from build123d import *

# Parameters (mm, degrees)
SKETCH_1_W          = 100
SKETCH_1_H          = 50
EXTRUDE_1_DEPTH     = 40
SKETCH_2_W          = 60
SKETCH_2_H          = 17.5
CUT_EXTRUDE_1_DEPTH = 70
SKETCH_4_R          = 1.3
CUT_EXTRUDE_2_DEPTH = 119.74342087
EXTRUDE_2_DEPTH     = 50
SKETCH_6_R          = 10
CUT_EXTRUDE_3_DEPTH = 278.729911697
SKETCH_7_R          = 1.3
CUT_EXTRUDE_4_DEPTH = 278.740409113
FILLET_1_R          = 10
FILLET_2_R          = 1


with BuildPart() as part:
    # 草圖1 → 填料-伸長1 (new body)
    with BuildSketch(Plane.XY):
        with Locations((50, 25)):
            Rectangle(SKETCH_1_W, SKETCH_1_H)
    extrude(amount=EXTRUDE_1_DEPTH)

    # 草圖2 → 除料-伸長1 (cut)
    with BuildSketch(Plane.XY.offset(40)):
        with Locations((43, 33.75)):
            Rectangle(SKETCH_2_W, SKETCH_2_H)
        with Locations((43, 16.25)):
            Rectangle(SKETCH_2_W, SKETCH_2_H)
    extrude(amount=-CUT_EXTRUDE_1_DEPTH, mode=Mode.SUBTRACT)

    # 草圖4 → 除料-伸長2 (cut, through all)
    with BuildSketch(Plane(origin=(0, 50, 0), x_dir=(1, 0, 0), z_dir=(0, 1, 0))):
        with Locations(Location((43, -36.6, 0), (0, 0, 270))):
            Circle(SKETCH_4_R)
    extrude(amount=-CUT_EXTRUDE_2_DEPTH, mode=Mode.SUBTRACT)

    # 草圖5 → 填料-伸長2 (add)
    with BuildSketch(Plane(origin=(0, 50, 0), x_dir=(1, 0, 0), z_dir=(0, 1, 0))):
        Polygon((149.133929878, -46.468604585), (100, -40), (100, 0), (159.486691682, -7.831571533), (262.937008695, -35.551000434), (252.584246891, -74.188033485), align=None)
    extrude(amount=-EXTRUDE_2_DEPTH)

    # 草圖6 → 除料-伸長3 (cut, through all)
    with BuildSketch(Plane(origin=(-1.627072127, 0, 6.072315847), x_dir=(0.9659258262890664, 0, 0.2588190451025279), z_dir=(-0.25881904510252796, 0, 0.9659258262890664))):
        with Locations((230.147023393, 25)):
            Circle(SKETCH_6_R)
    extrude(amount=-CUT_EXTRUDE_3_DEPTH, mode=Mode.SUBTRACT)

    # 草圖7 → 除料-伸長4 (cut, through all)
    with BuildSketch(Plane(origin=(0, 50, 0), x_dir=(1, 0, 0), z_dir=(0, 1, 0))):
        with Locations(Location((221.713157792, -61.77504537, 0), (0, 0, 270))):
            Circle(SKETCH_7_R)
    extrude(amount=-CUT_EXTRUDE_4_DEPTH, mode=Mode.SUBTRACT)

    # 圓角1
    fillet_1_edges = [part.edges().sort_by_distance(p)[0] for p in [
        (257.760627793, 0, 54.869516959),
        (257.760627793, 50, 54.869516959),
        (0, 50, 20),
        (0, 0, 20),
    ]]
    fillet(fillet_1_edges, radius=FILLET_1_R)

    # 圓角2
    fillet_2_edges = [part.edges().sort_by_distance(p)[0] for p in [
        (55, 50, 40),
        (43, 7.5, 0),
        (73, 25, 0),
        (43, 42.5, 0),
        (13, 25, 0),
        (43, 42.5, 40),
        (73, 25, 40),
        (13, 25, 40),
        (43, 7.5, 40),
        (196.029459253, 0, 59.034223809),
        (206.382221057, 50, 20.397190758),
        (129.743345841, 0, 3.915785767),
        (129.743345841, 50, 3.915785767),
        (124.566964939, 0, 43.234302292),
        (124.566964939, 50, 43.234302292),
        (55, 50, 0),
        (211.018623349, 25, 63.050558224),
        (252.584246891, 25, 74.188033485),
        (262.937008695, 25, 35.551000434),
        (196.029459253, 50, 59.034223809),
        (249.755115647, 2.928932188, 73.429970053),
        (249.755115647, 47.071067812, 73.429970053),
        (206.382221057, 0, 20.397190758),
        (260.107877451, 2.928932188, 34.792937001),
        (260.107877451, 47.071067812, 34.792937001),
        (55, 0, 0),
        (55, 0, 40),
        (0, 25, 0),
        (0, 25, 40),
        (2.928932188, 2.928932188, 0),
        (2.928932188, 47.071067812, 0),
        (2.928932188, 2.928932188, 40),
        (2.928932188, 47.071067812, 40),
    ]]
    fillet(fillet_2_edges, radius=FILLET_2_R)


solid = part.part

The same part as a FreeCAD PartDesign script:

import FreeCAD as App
import Part
import Sketcher
from FreeCAD import Vector
Q = App.Units.Quantity


def edges_at(feature, points):
    """Names of the edges that pass closest to the given points."""
    edges = feature.Shape.Edges
    near = lambda p: min(range(len(edges)), key=lambda i: edges[i].distToShape(Part.Vertex(*p))[0])
    return sorted({f"Edge{near(p) + 1}" for p in points})

doc = App.newDocument("Part")
body = doc.addObject("PartDesign::Body", "Body")

sketch1 = body.newObject("Sketcher::SketchObject", "Sketch")
sketch1.AttachmentSupport = (doc.getObject("XY_Plane"), [""])
sketch1.MapMode = "FlatFace"
sketch1.addGeometry(Part.LineSegment(Vector(0, 50, 0), Vector(0, 0, 0)), False)
sketch1.addGeometry(Part.LineSegment(Vector(0, 0, 0), Vector(100, 0, 0)), False)
sketch1.addGeometry(Part.LineSegment(Vector(100, 0, 0), Vector(100, 50, 0)), False)
sketch1.addGeometry(Part.LineSegment(Vector(100, 50, 0), Vector(0, 50, 0)), False)
sketch1.addConstraint(Sketcher.Constraint("Coincident", 0, 2, 1, 1))
sketch1.addConstraint(Sketcher.Constraint("Coincident", 1, 2, 2, 1))
sketch1.addConstraint(Sketcher.Constraint("Coincident", 2, 2, 3, 1))
sketch1.addConstraint(Sketcher.Constraint("Coincident", 3, 2, 0, 1))
sketch1.addConstraint(Sketcher.Constraint("Vertical", 0))
sketch1.addConstraint(Sketcher.Constraint("Horizontal", 1))
sketch1.addConstraint(Sketcher.Constraint("Vertical", 2))
sketch1.addConstraint(Sketcher.Constraint("Horizontal", 3))
sketch1.addConstraint(Sketcher.Constraint("Coincident", 0, 2, -1, 1))
sketch1.addConstraint(Sketcher.Constraint("DistanceX", 1, 1, 1, 2, Q("100 mm")))
sketch1.addConstraint(Sketcher.Constraint("DistanceY", 0, 2, 0, 1, Q("50 mm")))
pad1 = body.newObject("PartDesign::Pad", "Pad")
pad1.Profile = sketch1
pad1.Length = 40

sketch2 = body.newObject("Sketcher::SketchObject", "Sketch001")
sketch2.AttachmentSupport = (doc.getObject("XY_Plane"), [""])
sketch2.MapMode = "FlatFace"
sketch2.AttachmentOffset = App.Placement(Vector(0, 0, 40), App.Rotation())
sketch2.addGeometry(Part.LineSegment(Vector(13, 42, 0), Vector(13, 8, 0)), False)
sketch2.addGeometry(Part.LineSegment(Vector(13, 8, 0), Vector(73, 8, 0)), False)
sketch2.addGeometry(Part.LineSegment(Vector(73, 8, 0), Vector(73, 42, 0)), False)
sketch2.addGeometry(Part.LineSegment(Vector(73, 42, 0), Vector(13, 42, 0)), False)
sketch2.addConstraint(Sketcher.Constraint("Coincident", 0, 2, 1, 1))
sketch2.addConstraint(Sketcher.Constraint("Coincident", 1, 2, 2, 1))
sketch2.addConstraint(Sketcher.Constraint("Coincident", 2, 2, 3, 1))
sketch2.addConstraint(Sketcher.Constraint("Coincident", 3, 2, 0, 1))
sketch2.addConstraint(Sketcher.Constraint("Vertical", 0))
sketch2.addConstraint(Sketcher.Constraint("Horizontal", 1))
sketch2.addConstraint(Sketcher.Constraint("Vertical", 2))
sketch2.addConstraint(Sketcher.Constraint("Horizontal", 3))
sketch2.addConstraint(Sketcher.Constraint("DistanceX", 1, 1, 1, 2, Q("60 mm")))
sketch2.addConstraint(Sketcher.Constraint("DistanceY", 0, 2, 0, 1, Q("35 mm")))
sketch2.addConstraint(Sketcher.Constraint("DistanceX", -1, 1, 0, 2, Q("13 mm")))
sketch2.addConstraint(Sketcher.Constraint("DistanceY", -1, 1, 0, 2, Q("7.5 mm")))
pocket1 = body.newObject("PartDesign::Pocket", "Pocket")
pocket1.Profile = sketch2
pocket1.Length = 70

sketch3 = body.newObject("Sketcher::SketchObject", "Sketch002")
sketch3.AttachmentSupport = (doc.getObject("XZ_Plane"), [""])
sketch3.MapMode = "FlatFace"
sketch3.AttachmentOffset = App.Placement(Vector(0, 0, -50), App.Rotation())
sketch3.addGeometry(Part.Circle(Vector(43, 36.6, 0), Vector(0, 0, 1), 1.3), False)
sketch3.addConstraint(Sketcher.Constraint("Diameter", 0, Q("2.6 mm")))
sketch3.addConstraint(Sketcher.Constraint("DistanceX", -1, 1, 0, 3, Q("43 mm")))
sketch3.addConstraint(Sketcher.Constraint("DistanceY", -1, 1, 0, 3, Q("36.6 mm")))
pocket2 = body.newObject("PartDesign::Pocket", "Pocket001")
pocket2.Profile = sketch3
pocket2.Type = "ThroughAll"
pocket2.Reversed = True

sketch4 = body.newObject("Sketcher::SketchObject", "Sketch003")
sketch4.AttachmentSupport = (doc.getObject("XZ_Plane"), [""])
sketch4.MapMode = "FlatFace"
sketch4.AttachmentOffset = App.Placement(Vector(0, 0, -50), App.Rotation())
sketch4.addGeometry(Part.LineSegment(Vector(100, 40, 0), Vector(149, 46, 0)), False)
sketch4.addGeometry(Part.LineSegment(Vector(149, 46, 0), Vector(253, 74, 0)), False)
sketch4.addGeometry(Part.LineSegment(Vector(253, 74, 0), Vector(263, 36, 0)), False)
sketch4.addGeometry(Part.LineSegment(Vector(263, 36, 0), Vector(159, 8, 0)), False)
sketch4.addGeometry(Part.LineSegment(Vector(159, 8, 0), Vector(100, 0, 0)), False)
sketch4.addGeometry(Part.LineSegment(Vector(100, 0, 0), Vector(100, 40, 0)), False)
sketch4.addConstraint(Sketcher.Constraint("Coincident", 0, 2, 1, 1))
sketch4.addConstraint(Sketcher.Constraint("Coincident", 1, 2, 2, 1))
sketch4.addConstraint(Sketcher.Constraint("Coincident", 2, 2, 3, 1))
sketch4.addConstraint(Sketcher.Constraint("Coincident", 3, 2, 4, 1))
sketch4.addConstraint(Sketcher.Constraint("Coincident", 4, 2, 5, 1))
sketch4.addConstraint(Sketcher.Constraint("Coincident", 5, 2, 0, 1))
sketch4.addConstraint(Sketcher.Constraint("Vertical", 5))
sketch4.addConstraint(Sketcher.Constraint("PointOnObject", 4, 2, -1))
sketch4.addConstraint(Sketcher.Constraint("Perpendicular", 1, 2))
sketch4.addConstraint(Sketcher.Constraint("Perpendicular", 2, 3))
sketch4.addConstraint(Sketcher.Constraint("Parallel", 0, 4))
sketch4.addConstraint(Sketcher.Constraint("Equal", 1, 3))
sketch4.addConstraint(Sketcher.Constraint("DistanceY", 5, 1, 5, 2, Q("40 mm")))
sketch4.addConstraint(Sketcher.Constraint("Angle", 1, Q("15 deg")))
sketch4.addConstraint(Sketcher.Constraint("Distance", 2, Q("40 mm")))
sketch4.addConstraint(Sketcher.Constraint("Distance", 4, Q("60 mm")))
sketch4.addConstraint(Sketcher.Constraint("DistanceX", -1, 1, 4, 2, Q("100 mm")))
sketch4.addConstraint(Sketcher.Constraint("DistanceY", -1, 1, 2, 2, Q("35.551 mm")))
pad2 = body.newObject("PartDesign::Pad", "Pad001")
pad2.Profile = sketch4
pad2.Length = 50

sketch5 = body.newObject("Sketcher::SketchObject", "Sketch004")
sketch5.Placement = App.Placement(Vector(-1.627072, 0, 6.072316), App.Rotation(Vector(0.965925826, 0, 0.258819045), Vector(0, 0.999999999, 0), Vector(-0.258819045, 0, 0.965925826), "ZXY"))
sketch5.addGeometry(Part.Circle(Vector(230, 25, 0), Vector(0, 0, 1), 10), False)
sketch5.addConstraint(Sketcher.Constraint("Diameter", 0, Q("20 mm")))
sketch5.addConstraint(Sketcher.Constraint("DistanceY", -1, 1, 0, 3, Q("25 mm")))
sketch5.addConstraint(Sketcher.Constraint("DistanceX", -1, 1, 0, 3, Q("230.147023 mm")))
pocket3 = body.newObject("PartDesign::Pocket", "Pocket002")
pocket3.Profile = sketch5
pocket3.Type = "ThroughAll"

sketch6 = body.newObject("Sketcher::SketchObject", "Sketch005")
sketch6.AttachmentSupport = (doc.getObject("XZ_Plane"), [""])
sketch6.MapMode = "FlatFace"
sketch6.AttachmentOffset = App.Placement(Vector(0, 0, -50), App.Rotation())
sketch6.addGeometry(Part.Circle(Vector(221.7, 61.8, 0), Vector(0, 0, 1), 1.3), False)
sketch6.addConstraint(Sketcher.Constraint("Diameter", 0, Q("2.6 mm")))
sketch6.addConstraint(Sketcher.Constraint("DistanceX", -1, 1, 0, 3, Q("221.713158 mm")))
sketch6.addConstraint(Sketcher.Constraint("DistanceY", -1, 1, 0, 3, Q("61.775045 mm")))
pocket4 = body.newObject("PartDesign::Pocket", "Pocket003")
pocket4.Profile = sketch6
pocket4.Type = "ThroughAll"
pocket4.Reversed = True
doc.recompute()

fillet = body.newObject("PartDesign::Fillet", "Fillet")
fillet.Base = (pocket4, edges_at(pocket4, [
    (257.761, 0, 54.87),
    (257.761, 50, 54.87),
    (0, 50, 20),
    (0, 0, 20),
]))
fillet.Radius = 10
doc.recompute()

fillet2 = body.newObject("PartDesign::Fillet", "Fillet001")
fillet2.Base = (fillet, edges_at(fillet, [
    (55, 50, 40),
    (43, 7.5, 0),
    (73, 25, 0),
    (43, 42.5, 0),
    (13, 25, 0),
    (43, 42.5, 40),
    (73, 25, 40),
    (13, 25, 40),
    (43, 7.5, 40),
    (196.029, 0, 59.034),
    (206.382, 50, 20.397),
    (129.743, 0, 3.916),
    (129.743, 50, 3.916),
    (124.567, 0, 43.234),
    (124.567, 50, 43.234),
    (55, 50, 0),
    (211.019, 25, 63.051),
    (252.584, 25, 74.188),
    (262.937, 25, 35.551),
    (196.029, 50, 59.034),
    (249.755, 2.929, 73.43),
    (249.755, 47.071, 73.43),
    (206.382, 0, 20.397),
    (260.108, 2.929, 34.793),
    (260.108, 47.071, 34.793),
    (55, 0, 0),
    (55, 0, 40),
    (0, 25, 0),
    (0, 25, 40),
    (2.929, 2.929, 0),
    (2.929, 47.071, 0),
    (2.929, 2.929, 40),
    (2.929, 47.071, 40),
]))
fillet2.Radius = 1

doc.recompute()
